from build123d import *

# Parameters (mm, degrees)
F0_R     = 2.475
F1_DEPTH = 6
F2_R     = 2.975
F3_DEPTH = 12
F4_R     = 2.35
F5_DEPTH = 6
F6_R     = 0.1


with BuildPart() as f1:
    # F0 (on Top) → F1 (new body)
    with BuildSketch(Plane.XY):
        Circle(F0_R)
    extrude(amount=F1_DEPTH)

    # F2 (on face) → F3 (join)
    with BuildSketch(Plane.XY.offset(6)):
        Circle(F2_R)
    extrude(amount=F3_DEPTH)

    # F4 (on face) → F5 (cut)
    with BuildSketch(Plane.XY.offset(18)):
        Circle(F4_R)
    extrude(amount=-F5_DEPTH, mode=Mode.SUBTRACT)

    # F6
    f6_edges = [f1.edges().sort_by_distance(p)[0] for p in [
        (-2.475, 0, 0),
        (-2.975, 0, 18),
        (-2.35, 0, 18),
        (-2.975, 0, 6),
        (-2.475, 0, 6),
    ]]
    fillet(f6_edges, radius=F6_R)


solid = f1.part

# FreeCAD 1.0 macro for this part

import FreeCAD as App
import Part
import Sketcher
Q = App.Units.Quantity


def edges_at(feature, points):
    """Names of the edges that pass closest to the given points."""
    edges = feature.Shape.Edges
    near = lambda p: min(range(len(edges)), key=lambda i: edges[i].distToShape(Part.Vertex(*p))[0])
    return sorted({f"Edge{near(p) + 1}" for p in points})

doc = App.newDocument("Part")
params = doc.addObject("Spreadsheet::Sheet", "Params")
for row, (alias, value) in enumerate([
    ("sketch1_diameter", "4.95 mm"),
    ("pad1_length", "6 mm"),
    ("sketch2_diameter", "5.95 mm"),
    ("pad2_length", "12 mm"),
    ("sketch3_diameter", "4.7 mm"),
    ("pocket1_length", "6 mm"),
    ("fillet_radius", "0.1 mm"),
], start=1):
    params.set(f"A{row}", alias)
    params.set(f"B{row}", "=" + value)
    params.setAlias(f"B{row}", alias)

body = doc.addObject("PartDesign::Body", "Body")

# Sketch on XY plane
sketch1 = body.newObject("Sketcher::SketchObject", "Sketch")
sketch1.AttachmentSupport = (doc.getObject("XY_Plane"), [""])
sketch1.MapMode = "FlatFace"
sketch1.addGeometry(Part.Circle(App.Vector(0, 0, 0), App.Vector(0, 0, 1), 2.5), False)
sketch1.addConstraint([
    Sketcher.Constraint("Coincident", 0, 3, -1, 1),
    Sketcher.Constraint("Diameter", 0, Q("4.95 mm")),
])
sketch1.setExpression("Constraints[1]", "Params.sketch1_diameter")
pad1 = body.newObject("PartDesign::Pad", "Pad")
pad1.Profile = sketch1
pad1.setExpression("Length", "Params.pad1_length")

# Sketch on XY plane
sketch2 = body.newObject("Sketcher::SketchObject", "Sketch001")
sketch2.AttachmentSupport = (doc.getObject("XY_Plane"), [""])
sketch2.MapMode = "FlatFace"
sketch2.AttachmentOffset = App.Placement(App.Vector(0, 0, 6), App.Rotation())
sketch2.addGeometry(Part.Circle(App.Vector(0, 0, 0), App.Vector(0, 0, 1), 3), False)
sketch2.addConstraint([
    Sketcher.Constraint("Coincident", 0, 3, -1, 1),
    Sketcher.Constraint("Diameter", 0, Q("5.95 mm")),
])
sketch2.setExpression("Constraints[1]", "Params.sketch2_diameter")
pad2 = body.newObject("PartDesign::Pad", "Pad001")
pad2.Profile = sketch2
pad2.setExpression("Length", "Params.pad2_length")

# Sketch on XY plane
sketch3 = body.newObject("Sketcher::SketchObject", "Sketch002")
sketch3.AttachmentSupport = (doc.getObject("XY_Plane"), [""])
sketch3.MapMode = "FlatFace"
sketch3.AttachmentOffset = App.Placement(App.Vector(0, 0, 18), App.Rotation())
sketch3.addGeometry(Part.Circle(App.Vector(0, 0, 0), App.Vector(0, 0, 1), 2.4), False)
sketch3.addConstraint([
    Sketcher.Constraint("Coincident", 0, 3, -1, 1),
    Sketcher.Constraint("Diameter", 0, Q("4.7 mm")),
])
sketch3.setExpression("Constraints[1]", "Params.sketch3_diameter")
pocket1 = body.newObject("PartDesign::Pocket", "Pocket")
pocket1.Profile = sketch3
pocket1.setExpression("Length", "Params.pocket1_length")
doc.recompute()

fillet = body.newObject("PartDesign::Fillet", "Fillet")
fillet.Base = (pocket1, edges_at(pocket1, [
    (-2.475, 0, 0),
    (-2.975, 0, 18),
    (-2.35, 0, 18),
    (-2.975, 0, 6),
    (-2.475, 0, 6),
]))
fillet.setExpression("Radius", "Params.fillet_radius")

doc.recompute()
